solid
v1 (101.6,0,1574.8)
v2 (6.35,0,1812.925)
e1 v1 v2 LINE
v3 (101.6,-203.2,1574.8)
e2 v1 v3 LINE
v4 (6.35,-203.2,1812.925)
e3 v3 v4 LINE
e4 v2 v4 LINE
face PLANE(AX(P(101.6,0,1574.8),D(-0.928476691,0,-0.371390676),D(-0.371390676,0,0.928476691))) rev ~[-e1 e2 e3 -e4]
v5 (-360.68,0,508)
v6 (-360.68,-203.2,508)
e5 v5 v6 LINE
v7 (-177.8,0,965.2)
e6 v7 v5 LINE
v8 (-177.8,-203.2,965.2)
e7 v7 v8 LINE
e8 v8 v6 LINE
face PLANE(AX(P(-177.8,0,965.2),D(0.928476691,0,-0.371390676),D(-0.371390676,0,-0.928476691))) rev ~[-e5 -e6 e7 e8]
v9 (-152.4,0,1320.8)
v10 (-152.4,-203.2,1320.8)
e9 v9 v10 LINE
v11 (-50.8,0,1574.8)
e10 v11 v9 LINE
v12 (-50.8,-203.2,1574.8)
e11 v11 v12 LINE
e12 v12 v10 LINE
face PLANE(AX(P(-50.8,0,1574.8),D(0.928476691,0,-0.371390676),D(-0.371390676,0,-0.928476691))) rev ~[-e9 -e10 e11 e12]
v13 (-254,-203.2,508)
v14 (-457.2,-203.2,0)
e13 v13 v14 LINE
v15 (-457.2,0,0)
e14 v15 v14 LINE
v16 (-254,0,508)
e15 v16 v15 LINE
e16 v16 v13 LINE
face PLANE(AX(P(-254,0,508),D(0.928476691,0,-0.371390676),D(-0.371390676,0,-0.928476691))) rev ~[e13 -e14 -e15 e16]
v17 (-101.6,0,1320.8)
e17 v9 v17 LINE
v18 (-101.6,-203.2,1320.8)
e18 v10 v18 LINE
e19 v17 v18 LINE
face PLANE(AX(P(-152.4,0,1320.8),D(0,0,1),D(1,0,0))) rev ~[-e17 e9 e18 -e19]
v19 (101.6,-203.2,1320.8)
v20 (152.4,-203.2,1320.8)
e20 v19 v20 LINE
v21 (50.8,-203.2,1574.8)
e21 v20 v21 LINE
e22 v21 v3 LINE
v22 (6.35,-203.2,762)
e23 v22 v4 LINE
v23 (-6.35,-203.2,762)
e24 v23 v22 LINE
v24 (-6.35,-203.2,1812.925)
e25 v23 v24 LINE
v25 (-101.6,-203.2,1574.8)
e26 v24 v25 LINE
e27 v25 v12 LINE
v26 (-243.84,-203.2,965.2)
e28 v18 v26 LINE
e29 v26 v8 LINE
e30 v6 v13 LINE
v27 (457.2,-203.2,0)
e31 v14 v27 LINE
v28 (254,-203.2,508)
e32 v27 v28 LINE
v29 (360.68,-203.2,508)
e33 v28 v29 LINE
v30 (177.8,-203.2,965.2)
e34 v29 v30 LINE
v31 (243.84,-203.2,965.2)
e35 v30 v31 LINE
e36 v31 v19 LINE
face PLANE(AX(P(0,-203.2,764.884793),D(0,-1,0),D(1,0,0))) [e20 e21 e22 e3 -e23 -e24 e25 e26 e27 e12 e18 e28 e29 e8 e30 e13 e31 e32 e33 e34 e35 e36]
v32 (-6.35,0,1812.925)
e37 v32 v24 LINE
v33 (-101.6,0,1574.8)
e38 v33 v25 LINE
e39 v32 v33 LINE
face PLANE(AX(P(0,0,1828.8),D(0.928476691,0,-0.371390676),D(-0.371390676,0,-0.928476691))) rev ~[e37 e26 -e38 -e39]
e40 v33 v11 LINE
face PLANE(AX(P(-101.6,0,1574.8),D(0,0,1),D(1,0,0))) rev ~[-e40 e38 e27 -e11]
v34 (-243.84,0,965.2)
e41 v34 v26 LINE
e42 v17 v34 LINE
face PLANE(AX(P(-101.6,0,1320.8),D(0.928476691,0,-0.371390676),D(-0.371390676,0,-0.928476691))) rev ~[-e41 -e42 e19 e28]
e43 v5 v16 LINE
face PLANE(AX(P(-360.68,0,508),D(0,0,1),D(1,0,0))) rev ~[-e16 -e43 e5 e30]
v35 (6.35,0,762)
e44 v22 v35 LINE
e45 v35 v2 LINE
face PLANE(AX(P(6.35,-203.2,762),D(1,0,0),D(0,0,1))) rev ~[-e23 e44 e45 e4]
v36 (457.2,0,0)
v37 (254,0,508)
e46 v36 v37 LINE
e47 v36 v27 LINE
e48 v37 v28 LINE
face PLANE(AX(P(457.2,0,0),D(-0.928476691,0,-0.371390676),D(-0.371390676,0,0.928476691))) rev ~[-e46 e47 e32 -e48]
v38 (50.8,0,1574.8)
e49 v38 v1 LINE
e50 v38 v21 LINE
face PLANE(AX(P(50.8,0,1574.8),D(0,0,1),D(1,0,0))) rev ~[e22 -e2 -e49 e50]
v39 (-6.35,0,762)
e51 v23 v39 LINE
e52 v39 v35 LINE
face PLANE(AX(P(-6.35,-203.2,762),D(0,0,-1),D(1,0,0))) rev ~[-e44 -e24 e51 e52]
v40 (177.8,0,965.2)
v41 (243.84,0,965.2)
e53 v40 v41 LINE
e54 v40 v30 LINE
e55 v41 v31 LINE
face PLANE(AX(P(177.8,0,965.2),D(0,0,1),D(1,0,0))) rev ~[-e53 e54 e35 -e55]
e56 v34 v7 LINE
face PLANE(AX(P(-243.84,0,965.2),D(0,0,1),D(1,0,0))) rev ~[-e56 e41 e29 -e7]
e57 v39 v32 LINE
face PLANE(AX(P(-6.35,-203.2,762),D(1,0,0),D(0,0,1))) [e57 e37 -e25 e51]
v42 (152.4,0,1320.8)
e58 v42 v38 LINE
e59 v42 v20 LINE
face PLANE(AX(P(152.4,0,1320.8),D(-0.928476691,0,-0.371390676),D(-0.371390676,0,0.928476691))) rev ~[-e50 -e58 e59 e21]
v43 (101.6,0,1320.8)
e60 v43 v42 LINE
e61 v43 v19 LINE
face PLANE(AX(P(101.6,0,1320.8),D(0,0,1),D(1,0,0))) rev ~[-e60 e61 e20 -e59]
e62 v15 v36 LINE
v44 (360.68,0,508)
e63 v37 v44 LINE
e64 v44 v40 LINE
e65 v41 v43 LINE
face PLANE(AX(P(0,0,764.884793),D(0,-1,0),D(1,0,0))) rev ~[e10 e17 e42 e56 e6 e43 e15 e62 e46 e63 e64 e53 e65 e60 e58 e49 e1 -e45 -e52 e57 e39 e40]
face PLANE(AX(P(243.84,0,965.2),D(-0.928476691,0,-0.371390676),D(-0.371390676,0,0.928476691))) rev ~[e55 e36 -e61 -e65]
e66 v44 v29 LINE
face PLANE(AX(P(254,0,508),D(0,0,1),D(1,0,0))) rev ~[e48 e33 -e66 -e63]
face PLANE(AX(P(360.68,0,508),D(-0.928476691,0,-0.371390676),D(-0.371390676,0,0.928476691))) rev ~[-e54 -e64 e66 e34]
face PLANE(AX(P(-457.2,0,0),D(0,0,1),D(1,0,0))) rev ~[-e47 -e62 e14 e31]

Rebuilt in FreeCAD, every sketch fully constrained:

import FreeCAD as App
import Part
import Sketcher
from FreeCAD import Vector
Q = App.Units.Quantity


def add_polygon(sketch, points):
    """Adds a closed chain of lines whose ends are joined by coincident constraints."""
    first, n = sketch.GeometryCount, len(points)
    for a, b in zip(points, points[1:] + points[:1]):
        sketch.addGeometry(Part.LineSegment(App.Vector(*a, 0), App.Vector(*b, 0)), False)
    for i in range(n):
        sketch.addConstraint(Sketcher.Constraint("Coincident", first + i, 2, first + (i + 1) % n, 1))

doc = App.newDocument("Part")
body = doc.addObject("PartDesign::Body", "Body")

# Sketch on XZ plane
sketch1 = doc.addObject("Sketcher::SketchObject", "Sketch")
body.addObject(sketch1)
sketch1.AttachmentSupport = (doc.XZ_Plane, [""])
sketch1.MapMode = "FlatFace"
add_polygon(sketch1, [(102, 1575), (0, 1829), (-102, 1575), (-51, 1575), (-152, 1321), (-102, 1321), (-244, 965), (-178, 965), (-361, 508), (-254, 508), (-457, 0), (457, 0), (254, 508), (361, 508), (178, 965), (244, 965), (102, 1321), (152, 1321), (51, 1575)])  # lines 0-18
sketch1.addConstraint([
    Sketcher.Constraint("Horizontal", 2),
    Sketcher.Constraint("Horizontal", 4),
    Sketcher.Constraint("Horizontal", 6),
    Sketcher.Constraint("Horizontal", 8),
    Sketcher.Constraint("Horizontal", 10),
    Sketcher.Constraint("Horizontal", 12),
    Sketcher.Constraint("Horizontal", 14),
    Sketcher.Constraint("Horizontal", 16),
    Sketcher.Constraint("Horizontal", 18),
    Sketcher.Constraint("Symmetric", 9, 2, 10, 2, -1, 1),
    Sketcher.Constraint("Symmetric", 8, 2, 11, 2, -2),
    Sketcher.Constraint("Symmetric", 6, 2, 13, 2, -2),
    Sketcher.Constraint("Symmetric", 4, 2, 15, 2, -2),
    Sketcher.Constraint("Symmetric", 2, 2, 17, 2, -2),
    Sketcher.Constraint("PointOnObject", 0, 2, -2),
    Sketcher.Constraint("Parallel", 1, 3),
    Sketcher.Constraint("Parallel", 3, 5),
    Sketcher.Constraint("Parallel", 5, 7),
    Sketcher.Constraint("Parallel", 7, 9),
    Sketcher.Constraint("Parallel", 0, 11),
    Sketcher.Constraint("Parallel", 11, 13),
    Sketcher.Constraint("Parallel", 13, 15),
    Sketcher.Constraint("Parallel", 15, 17),
    Sketcher.Constraint("Vertical", 1, 2, 4, 2),
    Sketcher.Constraint("Equal", 2, 4),
    Sketcher.Constraint("Equal", 1, 3),
    Sketcher.Constraint("DistanceX", 2, 1, 2, 2, Q("2 in")),
    Sketcher.Constraint("DistanceX", 10, 1, 10, 2, Q("36 in")),
    Sketcher.Constraint("DistanceX", 6, 1, 6, 2, Q("2.6 in")),
    Sketcher.Constraint("DistanceX", 8, 1, 8, 2, Q("4.2 in")),
    Sketcher.Constraint("DistanceY", -1, 1, 0, 2, Q("72 in")),
    Sketcher.Constraint("DistanceY", -1, 1, 5, 2, Q("38 in")),
    Sketcher.Constraint("DistanceY", -1, 1, 7, 2, Q("20 in")),
])
pad1 = doc.addObject("PartDesign::Pad", "Pad")
body.addObject(pad1)
pad1.Profile = sketch1
pad1.Length = Q("8 in")

# Sketch on XZ plane
sketch2 = doc.addObject("Sketcher::SketchObject", "Sketch001")
body.addObject(sketch2)
sketch2.AttachmentSupport = (doc.XZ_Plane, [""])
sketch2.MapMode = "FlatFace"
sketch2.AttachmentOffset = App.Placement(Vector(0, 0, 8 * 25.4), App.Rotation())
add_polygon(sketch2, [(-6, 1905), (-6, 762), (6, 762), (6, 1905)])  # lines 0-3
sketch2.addConstraint([
    Sketcher.Constraint("Vertical", 0),
    Sketcher.Constraint("Horizontal", 1),
    Sketcher.Constraint("Vertical", 2),
    Sketcher.Constraint("Horizontal", 3),
    Sketcher.Constraint("DistanceY", 0, 2, 0, 1, Q("45 in")),
    Sketcher.Constraint("DistanceX", 1, 1, 1, 2, Q("0.5 in")),
    Sketcher.Constraint("DistanceY", -1, 1, 0, 2, Q("30 in")),
    Sketcher.Constraint("DistanceX", 0, 2, -1, 1, Q("0.25 in")),
])
pocket1 = doc.addObject("PartDesign::Pocket", "Pocket")
body.addObject(pocket1)
pocket1.Profile = sketch2
pocket1.Type = "ThroughAll"

doc.recompute()
